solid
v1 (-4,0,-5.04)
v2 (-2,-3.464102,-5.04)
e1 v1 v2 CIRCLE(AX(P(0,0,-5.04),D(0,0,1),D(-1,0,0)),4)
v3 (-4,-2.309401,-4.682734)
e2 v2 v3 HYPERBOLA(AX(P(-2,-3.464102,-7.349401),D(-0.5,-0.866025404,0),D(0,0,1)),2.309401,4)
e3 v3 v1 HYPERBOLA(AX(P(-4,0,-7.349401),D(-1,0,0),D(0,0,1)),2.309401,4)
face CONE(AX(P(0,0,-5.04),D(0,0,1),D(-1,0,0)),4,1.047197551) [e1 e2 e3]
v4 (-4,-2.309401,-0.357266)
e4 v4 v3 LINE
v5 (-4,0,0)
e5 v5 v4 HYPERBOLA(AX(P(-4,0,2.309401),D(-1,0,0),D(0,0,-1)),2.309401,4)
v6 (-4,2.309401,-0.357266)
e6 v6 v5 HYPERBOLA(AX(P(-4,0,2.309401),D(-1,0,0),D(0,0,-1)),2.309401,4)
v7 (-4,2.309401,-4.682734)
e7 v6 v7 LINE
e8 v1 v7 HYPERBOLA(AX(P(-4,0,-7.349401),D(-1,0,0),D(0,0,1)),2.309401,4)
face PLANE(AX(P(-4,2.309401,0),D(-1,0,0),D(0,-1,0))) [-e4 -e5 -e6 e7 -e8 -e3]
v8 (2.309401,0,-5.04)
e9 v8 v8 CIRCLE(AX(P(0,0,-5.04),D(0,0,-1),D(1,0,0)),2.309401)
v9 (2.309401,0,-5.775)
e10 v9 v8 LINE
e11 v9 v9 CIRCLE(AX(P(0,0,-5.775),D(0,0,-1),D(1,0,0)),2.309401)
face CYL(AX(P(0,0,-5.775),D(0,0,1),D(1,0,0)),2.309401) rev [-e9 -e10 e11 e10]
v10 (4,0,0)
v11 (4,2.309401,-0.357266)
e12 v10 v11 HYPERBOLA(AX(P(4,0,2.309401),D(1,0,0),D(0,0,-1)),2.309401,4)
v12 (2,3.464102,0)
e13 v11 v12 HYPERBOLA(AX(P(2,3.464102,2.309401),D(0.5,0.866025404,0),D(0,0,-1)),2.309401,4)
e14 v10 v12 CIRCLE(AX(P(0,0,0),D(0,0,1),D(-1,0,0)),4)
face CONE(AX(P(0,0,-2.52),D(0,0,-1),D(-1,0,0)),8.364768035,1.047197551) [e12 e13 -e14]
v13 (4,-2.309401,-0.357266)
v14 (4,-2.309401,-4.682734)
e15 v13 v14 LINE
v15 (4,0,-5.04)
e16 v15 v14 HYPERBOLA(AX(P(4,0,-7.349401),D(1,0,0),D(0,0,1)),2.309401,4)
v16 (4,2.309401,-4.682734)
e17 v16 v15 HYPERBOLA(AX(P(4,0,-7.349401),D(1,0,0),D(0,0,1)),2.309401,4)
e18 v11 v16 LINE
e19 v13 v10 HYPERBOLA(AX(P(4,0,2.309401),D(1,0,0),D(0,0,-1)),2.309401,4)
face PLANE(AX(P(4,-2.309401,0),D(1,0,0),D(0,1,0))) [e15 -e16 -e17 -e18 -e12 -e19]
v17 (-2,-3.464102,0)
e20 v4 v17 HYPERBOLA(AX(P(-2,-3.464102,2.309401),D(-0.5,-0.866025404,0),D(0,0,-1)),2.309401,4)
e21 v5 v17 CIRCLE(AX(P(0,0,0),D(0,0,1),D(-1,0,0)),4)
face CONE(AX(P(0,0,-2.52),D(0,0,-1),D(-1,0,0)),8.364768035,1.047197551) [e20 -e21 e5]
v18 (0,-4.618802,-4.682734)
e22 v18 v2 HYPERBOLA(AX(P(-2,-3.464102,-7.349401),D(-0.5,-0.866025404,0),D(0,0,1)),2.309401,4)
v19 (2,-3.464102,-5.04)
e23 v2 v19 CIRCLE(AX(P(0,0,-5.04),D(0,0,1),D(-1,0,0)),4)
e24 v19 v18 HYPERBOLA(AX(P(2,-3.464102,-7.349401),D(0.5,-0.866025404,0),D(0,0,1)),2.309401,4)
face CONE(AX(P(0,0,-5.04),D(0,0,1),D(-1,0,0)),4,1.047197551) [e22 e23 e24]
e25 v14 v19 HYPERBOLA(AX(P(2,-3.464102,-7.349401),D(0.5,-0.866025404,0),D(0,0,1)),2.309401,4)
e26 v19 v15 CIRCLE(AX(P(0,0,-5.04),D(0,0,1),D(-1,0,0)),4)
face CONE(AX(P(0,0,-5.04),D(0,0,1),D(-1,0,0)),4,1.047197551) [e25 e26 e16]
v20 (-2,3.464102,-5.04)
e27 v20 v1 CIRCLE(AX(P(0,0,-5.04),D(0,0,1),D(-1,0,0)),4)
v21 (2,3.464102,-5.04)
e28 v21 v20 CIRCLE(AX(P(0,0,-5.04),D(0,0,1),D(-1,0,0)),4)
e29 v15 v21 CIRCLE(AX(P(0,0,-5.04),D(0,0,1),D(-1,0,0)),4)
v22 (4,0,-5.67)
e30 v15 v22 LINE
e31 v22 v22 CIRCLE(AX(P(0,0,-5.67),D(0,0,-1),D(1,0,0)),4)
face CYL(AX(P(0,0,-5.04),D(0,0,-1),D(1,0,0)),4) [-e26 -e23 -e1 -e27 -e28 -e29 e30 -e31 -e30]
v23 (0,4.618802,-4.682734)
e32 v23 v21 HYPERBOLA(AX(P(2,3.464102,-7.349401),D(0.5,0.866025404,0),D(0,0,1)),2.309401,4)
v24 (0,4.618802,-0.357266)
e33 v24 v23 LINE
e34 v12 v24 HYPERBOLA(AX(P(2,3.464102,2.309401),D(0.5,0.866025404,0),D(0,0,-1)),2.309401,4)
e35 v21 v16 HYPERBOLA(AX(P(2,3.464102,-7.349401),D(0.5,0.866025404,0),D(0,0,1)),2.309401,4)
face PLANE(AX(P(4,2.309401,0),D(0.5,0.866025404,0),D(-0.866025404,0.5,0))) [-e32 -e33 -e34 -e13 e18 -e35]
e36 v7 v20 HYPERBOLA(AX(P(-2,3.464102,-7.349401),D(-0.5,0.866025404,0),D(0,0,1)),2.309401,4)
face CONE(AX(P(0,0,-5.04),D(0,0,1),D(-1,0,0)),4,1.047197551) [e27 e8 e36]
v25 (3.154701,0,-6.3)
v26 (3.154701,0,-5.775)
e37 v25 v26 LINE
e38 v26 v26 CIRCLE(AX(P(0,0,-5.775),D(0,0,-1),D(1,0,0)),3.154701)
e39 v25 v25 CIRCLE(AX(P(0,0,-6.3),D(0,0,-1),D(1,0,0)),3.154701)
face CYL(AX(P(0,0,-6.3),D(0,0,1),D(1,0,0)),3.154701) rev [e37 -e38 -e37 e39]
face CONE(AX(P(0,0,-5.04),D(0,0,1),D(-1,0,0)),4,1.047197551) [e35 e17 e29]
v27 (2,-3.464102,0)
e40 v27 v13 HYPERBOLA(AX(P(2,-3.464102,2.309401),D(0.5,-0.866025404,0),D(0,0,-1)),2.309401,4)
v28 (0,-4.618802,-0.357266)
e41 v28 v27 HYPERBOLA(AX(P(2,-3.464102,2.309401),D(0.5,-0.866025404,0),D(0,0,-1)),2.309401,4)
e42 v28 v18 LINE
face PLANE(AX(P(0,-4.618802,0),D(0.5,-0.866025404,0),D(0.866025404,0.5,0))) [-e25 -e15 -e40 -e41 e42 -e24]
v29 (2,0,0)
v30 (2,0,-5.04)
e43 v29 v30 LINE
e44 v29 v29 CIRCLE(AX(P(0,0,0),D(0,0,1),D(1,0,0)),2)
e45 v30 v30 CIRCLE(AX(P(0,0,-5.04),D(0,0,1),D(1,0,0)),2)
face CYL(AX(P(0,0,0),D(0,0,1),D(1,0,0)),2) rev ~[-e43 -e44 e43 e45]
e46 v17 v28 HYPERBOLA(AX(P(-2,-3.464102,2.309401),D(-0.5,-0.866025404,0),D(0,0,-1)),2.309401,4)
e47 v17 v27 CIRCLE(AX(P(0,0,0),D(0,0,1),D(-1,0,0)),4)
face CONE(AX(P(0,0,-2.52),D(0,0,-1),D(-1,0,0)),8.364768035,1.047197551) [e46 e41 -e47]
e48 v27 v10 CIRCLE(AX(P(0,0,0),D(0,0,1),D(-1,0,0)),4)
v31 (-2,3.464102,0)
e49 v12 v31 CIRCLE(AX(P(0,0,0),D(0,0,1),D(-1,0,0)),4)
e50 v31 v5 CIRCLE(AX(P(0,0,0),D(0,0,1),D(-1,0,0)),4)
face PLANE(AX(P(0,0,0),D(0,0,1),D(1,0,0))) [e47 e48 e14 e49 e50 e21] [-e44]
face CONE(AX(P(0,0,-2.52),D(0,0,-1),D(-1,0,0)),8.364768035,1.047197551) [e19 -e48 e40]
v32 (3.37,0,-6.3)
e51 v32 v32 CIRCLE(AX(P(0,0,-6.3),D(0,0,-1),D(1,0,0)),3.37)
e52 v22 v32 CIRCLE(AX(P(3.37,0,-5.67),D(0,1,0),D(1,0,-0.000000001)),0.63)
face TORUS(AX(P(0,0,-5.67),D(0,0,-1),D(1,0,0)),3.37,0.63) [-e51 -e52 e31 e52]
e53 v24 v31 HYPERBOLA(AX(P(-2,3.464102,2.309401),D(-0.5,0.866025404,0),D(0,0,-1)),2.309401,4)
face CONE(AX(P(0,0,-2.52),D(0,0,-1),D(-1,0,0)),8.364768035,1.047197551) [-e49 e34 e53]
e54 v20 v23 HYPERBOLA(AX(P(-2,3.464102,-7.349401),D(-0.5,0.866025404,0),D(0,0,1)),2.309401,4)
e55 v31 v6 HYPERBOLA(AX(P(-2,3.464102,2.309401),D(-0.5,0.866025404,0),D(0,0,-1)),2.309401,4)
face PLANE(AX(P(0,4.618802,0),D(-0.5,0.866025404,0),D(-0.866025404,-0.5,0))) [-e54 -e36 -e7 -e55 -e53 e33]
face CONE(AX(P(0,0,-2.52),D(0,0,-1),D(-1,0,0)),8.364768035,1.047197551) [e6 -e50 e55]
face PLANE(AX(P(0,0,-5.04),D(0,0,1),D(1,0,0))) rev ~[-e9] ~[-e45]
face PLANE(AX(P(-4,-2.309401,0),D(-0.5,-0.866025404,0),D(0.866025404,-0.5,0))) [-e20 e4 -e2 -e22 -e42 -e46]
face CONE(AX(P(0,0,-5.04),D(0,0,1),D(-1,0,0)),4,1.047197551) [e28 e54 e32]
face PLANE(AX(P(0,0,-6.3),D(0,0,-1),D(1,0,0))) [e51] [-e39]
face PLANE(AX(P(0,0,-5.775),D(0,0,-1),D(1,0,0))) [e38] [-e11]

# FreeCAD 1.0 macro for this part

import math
import FreeCAD as App
import Part
import Sketcher
from FreeCAD import Vector
Q = App.Units.Quantity

doc = App.newDocument("Part")
body = doc.addObject("PartDesign::Body", "Body")

sketch1 = body.newObject("Sketcher::SketchObject", "Sketch")
sketch1.AttachmentSupport = (doc.getObject("XY_Plane"), [""])
sketch1.MapMode = "FlatFace"
sketch1.addGeometry([
    Part.LineSegment(Vector(4, -2.3, 0), Vector(4, 2.3, 0)),
    Part.LineSegment(Vector(4, 2.3, 0), Vector(0, 4.6, 0)),
    Part.LineSegment(Vector(0, 4.6, 0), Vector(-4, 2.3, 0)),
    Part.LineSegment(Vector(-4, 2.3, 0), Vector(-4, -2.3, 0)),
    Part.LineSegment(Vector(-4, -2.3, 0), Vector(0, -4.6, 0)),
    Part.LineSegment(Vector(0, -4.6, 0), Vector(4, -2.3, 0)),
], False)
sketch1.addConstraint([
    Sketcher.Constraint("Coincident", 0, 2, 1, 1),
    Sketcher.Constraint("Coincident", 1, 2, 2, 1),
    Sketcher.Constraint("Coincident", 2, 2, 3, 1),
    Sketcher.Constraint("Coincident", 3, 2, 4, 1),
    Sketcher.Constraint("Coincident", 4, 2, 5, 1),
    Sketcher.Constraint("Coincident", 5, 2, 0, 1),
    Sketcher.Constraint("Vertical", 0),
    Sketcher.Constraint("Vertical", 3),
    Sketcher.Constraint("Symmetric", 0, 2, 3, 2, -1, 1),
    Sketcher.Constraint("Symmetric", 1, 2, 4, 2, -1, 1),
    Sketcher.Constraint("PointOnObject", 1, 2, -2),
    Sketcher.Constraint("Parallel", 2, 5),
    Sketcher.Constraint("Horizontal", 0, 2, 2, 2),
    Sketcher.Constraint("Angle", 1, Q("150 deg")),
    Sketcher.Constraint("DistanceX", -1, 1, 0, 2, 4.0),
    Sketcher.Constraint("DistanceY", -1, 1, 0, 2, 2.309401),
])
pad1 = body.newObject("PartDesign::Pad", "Pad")
pad1.Profile = sketch1
pad1.Length = 5.04
pad1.Reversed = True

sketch2 = body.newObject("Sketcher::SketchObject", "Sketch001")
sketch2.AttachmentSupport = (doc.getObject("XZ_Plane"), [""])
sketch2.MapMode = "FlatFace"
sketch2.addGeometry([
    Part.LineSegment(Vector(-9, 0, 0), Vector(-4, 0, 0)),
    Part.LineSegment(Vector(-4, 0, 0), Vector(-8, -3, 0)),
    Part.LineSegment(Vector(-8, -3, 0), Vector(-4, -5, 0)),
    Part.LineSegment(Vector(-4, -5, 0), Vector(-9, -5, 0)),
    Part.LineSegment(Vector(-9, -5, 0), Vector(-9, 0, 0)),
], False)
sketch2.addConstraint([
    Sketcher.Constraint("Coincident", 0, 2, 1, 1),
    Sketcher.Constraint("Coincident", 1, 2, 2, 1),
    Sketcher.Constraint("Coincident", 2, 2, 3, 1),
    Sketcher.Constraint("Coincident", 3, 2, 4, 1),
    Sketcher.Constraint("Coincident", 4, 2, 0, 1),
    Sketcher.Constraint("Horizontal", 0),
    Sketcher.Constraint("Horizontal", 3),
    Sketcher.Constraint("Vertical", 4),
    Sketcher.Constraint("PointOnObject", 0, 2, -1),
    Sketcher.Constraint("Vertical", 0, 2, 2, 2),
    Sketcher.Constraint("Equal", 1, 2),
    Sketcher.Constraint("Angle", 1, Q("-150 deg")),
    Sketcher.Constraint("DistanceX", 0, 2, -1, 1, 4.0),
    Sketcher.Constraint("DistanceX", 3, 2, 1, 2, 1.0),
    Sketcher.Constraint("DistanceY", 4, 1, 4, 2, 5.04),
])
groove = body.newObject("PartDesign::Groove", "Groove")
groove.Profile = sketch2
groove.ReferenceAxis = (sketch2, ["V_Axis"])
groove.Angle = 360

sketch3 = body.newObject("Sketcher::SketchObject", "Sketch002")
sketch3.AttachmentSupport = (doc.getObject("XY_Plane"), [""])
sketch3.MapMode = "FlatFace"
sketch3.addGeometry(Part.Circle(Vector(0, 0, 0), Vector(0, 0, 1), 2.5), False)
sketch3.addConstraint([
    Sketcher.Constraint("Coincident", 0, 3, -1, 1),
    Sketcher.Constraint("Diameter", 0, 5.0),
])
pocket1 = body.newObject("PartDesign::Pocket", "Pocket")
pocket1.Profile = sketch3
pocket1.Type = "ThroughAll"

sketch4 = body.newObject("Sketcher::SketchObject", "Sketch003")
sketch4.AttachmentSupport = (doc.getObject("YZ_Plane"), [""])
sketch4.MapMode = "FlatFace"
sketch4.addGeometry([
    Part.LineSegment(Vector(4, -5.67, 0), Vector(4, -5.04, 0)),
    Part.LineSegment(Vector(4, -5.04, 0), Vector(2.31, -5.04, 0)),
    Part.LineSegment(Vector(2.31, -5.04, 0), Vector(2.31, -5.78, 0)),
    Part.LineSegment(Vector(2.31, -5.78, 0), Vector(3.15, -5.78, 0)),
    Part.LineSegment(Vector(3.15, -5.78, 0), Vector(3.15, -6.3, 0)),
    Part.LineSegment(Vector(3.15, -6.3, 0), Vector(3.37, -6.3, 0)),
    Part.ArcOfCircle(Part.Circle(Vector(3.37, -5.67, 0), Vector(0, 0, 1), 0.63), math.radians(-90), math.radians(0)),
], False)
sketch4.addConstraint([
    Sketcher.Constraint("Coincident", 0, 2, 1, 1),
    Sketcher.Constraint("Coincident", 1, 2, 2, 1),
    Sketcher.Constraint("Coincident", 2, 2, 3, 1),
    Sketcher.Constraint("Coincident", 3, 2, 4, 1),
    Sketcher.Constraint("Coincident", 4, 2, 5, 1),
    Sketcher.Constraint("Tangent", 5, 2, 6, 1),
    Sketcher.Constraint("Tangent", 6, 2, 0, 1),
    Sketcher.Constraint("Vertical", 0),
    Sketcher.Constraint("Horizontal", 1),
    Sketcher.Constraint("Vertical", 2),
    Sketcher.Constraint("Horizontal", 3),
    Sketcher.Constraint("Vertical", 4),
    Sketcher.Constraint("Horizontal", 5),
    Sketcher.Constraint("Radius", 6, 0.63),
    Sketcher.Constraint("DistanceX", -1, 1, 0, 2, 4.0),
    Sketcher.Constraint("DistanceY", 0, 1, 0, 2, 0.63),
    Sketcher.Constraint("DistanceY", 4, 2, -1, 1, 6.3),
    Sketcher.Constraint("DistanceY", 2, 2, 2, 1, 0.735),
    Sketcher.Constraint("DistanceX", 1, 2, 1, 1, 1.690599),
    Sketcher.Constraint("DistanceX", 3, 1, 3, 2, 0.845299),
])
revolution = body.newObject("PartDesign::Revolution", "Revolution")
revolution.Profile = sketch4
revolution.ReferenceAxis = (sketch4, ["V_Axis"])
revolution.Angle = 360

sketch5 = body.newObject("Sketcher::SketchObject", "Sketch004")
sketch5.AttachmentSupport = (doc.getObject("XY_Plane"), [""])
sketch5.MapMode = "FlatFace"
sketch5.addGeometry([
    Part.Circle(Vector(0, 0, 0), Vector(0, 0, 1), 2.5),
    Part.Circle(Vector(0, 0, 0), Vector(0, 0, 1), 2),
], False)
sketch5.addConstraint([
    Sketcher.Constraint("Coincident", 0, 3, -1, 1),
    Sketcher.Constraint("Coincident", 1, 3, -1, 1),
    Sketcher.Constraint("Diameter", 0, 5.0),
    Sketcher.Constraint("Diameter", 1, 4.0),
])
pad2 = body.newObject("PartDesign::Pad", "Pad001")
pad2.Profile = sketch5
pad2.Length = 5.04
pad2.Reversed = True

doc.recompute()
